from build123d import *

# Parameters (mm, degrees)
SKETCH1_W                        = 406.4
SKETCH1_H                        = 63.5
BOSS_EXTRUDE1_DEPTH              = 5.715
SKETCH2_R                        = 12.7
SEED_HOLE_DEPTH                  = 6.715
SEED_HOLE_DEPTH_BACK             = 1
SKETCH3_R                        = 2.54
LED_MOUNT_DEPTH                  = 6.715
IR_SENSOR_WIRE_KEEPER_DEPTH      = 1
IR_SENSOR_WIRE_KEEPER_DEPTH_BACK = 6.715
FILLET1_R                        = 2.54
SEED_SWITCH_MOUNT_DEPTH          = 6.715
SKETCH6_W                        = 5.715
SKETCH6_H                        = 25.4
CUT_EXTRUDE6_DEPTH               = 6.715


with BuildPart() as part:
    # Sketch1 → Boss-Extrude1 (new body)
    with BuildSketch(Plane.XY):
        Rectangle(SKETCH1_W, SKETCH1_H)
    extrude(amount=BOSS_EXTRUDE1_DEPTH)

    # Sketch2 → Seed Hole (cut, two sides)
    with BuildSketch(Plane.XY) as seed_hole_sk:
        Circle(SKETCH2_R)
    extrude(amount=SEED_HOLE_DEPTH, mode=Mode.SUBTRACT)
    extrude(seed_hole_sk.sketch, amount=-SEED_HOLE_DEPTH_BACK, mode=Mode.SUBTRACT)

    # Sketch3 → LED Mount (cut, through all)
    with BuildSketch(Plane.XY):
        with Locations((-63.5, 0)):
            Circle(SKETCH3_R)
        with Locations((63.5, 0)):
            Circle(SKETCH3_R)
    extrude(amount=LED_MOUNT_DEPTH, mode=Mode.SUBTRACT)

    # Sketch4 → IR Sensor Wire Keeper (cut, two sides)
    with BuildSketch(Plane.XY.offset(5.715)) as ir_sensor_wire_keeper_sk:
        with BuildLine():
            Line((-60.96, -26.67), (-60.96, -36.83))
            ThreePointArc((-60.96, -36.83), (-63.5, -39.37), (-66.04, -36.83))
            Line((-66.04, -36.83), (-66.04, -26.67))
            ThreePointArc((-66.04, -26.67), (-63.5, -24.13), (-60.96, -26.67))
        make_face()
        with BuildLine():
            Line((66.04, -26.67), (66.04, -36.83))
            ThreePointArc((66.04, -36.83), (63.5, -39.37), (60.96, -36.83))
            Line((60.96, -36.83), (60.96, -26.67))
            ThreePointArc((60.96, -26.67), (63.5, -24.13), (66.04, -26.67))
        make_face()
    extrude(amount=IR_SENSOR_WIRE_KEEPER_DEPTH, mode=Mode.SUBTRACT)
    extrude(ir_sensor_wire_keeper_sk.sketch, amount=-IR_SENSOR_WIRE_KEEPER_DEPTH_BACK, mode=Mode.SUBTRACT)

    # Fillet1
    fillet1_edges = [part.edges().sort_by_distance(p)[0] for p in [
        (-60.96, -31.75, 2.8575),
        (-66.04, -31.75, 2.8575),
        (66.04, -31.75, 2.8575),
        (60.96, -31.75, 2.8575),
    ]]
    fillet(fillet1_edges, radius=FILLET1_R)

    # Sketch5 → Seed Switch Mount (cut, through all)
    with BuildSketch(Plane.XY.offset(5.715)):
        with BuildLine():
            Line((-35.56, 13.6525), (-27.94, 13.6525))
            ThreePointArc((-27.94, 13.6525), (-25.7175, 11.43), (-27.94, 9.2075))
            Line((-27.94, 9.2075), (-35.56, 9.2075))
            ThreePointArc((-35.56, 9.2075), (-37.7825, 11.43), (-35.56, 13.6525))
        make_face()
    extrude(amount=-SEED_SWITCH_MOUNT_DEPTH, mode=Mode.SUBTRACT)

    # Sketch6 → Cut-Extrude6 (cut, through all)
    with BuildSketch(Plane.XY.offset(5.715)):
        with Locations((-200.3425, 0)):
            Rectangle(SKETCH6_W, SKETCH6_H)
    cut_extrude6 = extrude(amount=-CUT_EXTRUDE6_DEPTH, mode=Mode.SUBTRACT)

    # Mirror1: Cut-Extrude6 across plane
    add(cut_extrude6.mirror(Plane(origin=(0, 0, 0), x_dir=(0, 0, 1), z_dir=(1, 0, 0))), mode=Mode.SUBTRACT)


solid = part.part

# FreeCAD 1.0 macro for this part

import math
import FreeCAD as App
import Part
import Sketcher

V = App.Vector
Q = App.Units.Quantity


def edges_at(feature, points):
    """Names of the edges that pass closest to the given points."""
    edges = feature.Shape.Edges
    near = lambda p: min(range(len(edges)), key=lambda i: edges[i].distToShape(Part.Vertex(*p))[0])
    return sorted({f"Edge{near(p) + 1}" for p in points})


def add_polygon(sketch, points):
    """Adds a closed chain of lines whose ends are joined by coincident constraints."""
    first, n = sketch.GeometryCount, len(points)
    for a, b in zip(points, points[1:] + points[:1]):
        sketch.addGeometry(Part.LineSegment(App.Vector(*a, 0), App.Vector(*b, 0)), False)
    for i in range(n):
        sketch.addConstraint(Sketcher.Constraint("Coincident", first + i, 2, first + (i + 1) % n, 1))

doc = App.newDocument("Part")
body = doc.addObject("PartDesign::Body", "Body")

# Sketch on XY plane
sketch1 = body.newObject("Sketcher::SketchObject", "Sketch")
sketch1.AttachmentSupport = (doc.getObject("XY_Plane"), [""])
sketch1.MapMode = "FlatFace"
add_polygon(sketch1, [(-203.2, 31.75), (-203.2, -31.75), (203.2, -31.75), (203.2, 31.75)])  # lines 0-3
sketch1.addConstraint(Sketcher.Constraint("Vertical", 0))
sketch1.addConstraint(Sketcher.Constraint("Horizontal", 1))
sketch1.addConstraint(Sketcher.Constraint("Vertical", 2))
sketch1.addConstraint(Sketcher.Constraint("Horizontal", 3))
sketch1.addConstraint(Sketcher.Constraint("Symmetric", 0, 2, 2, 2, -1, 1))
sketch1.addConstraint(Sketcher.Constraint("DistanceX", 1, 1, 1, 2, Q("16 in")))
sketch1.addConstraint(Sketcher.Constraint("DistanceY", 0, 2, 0, 1, Q("2.5 in")))
pad1 = body.newObject("PartDesign::Pad", "Pad")
pad1.Profile = sketch1
pad1.Length = Q("0.225 in")

# Sketch on XY plane
sketch2 = body.newObject("Sketcher::SketchObject", "Sketch001")
sketch2.AttachmentSupport = (doc.getObject("XY_Plane"), [""])
sketch2.MapMode = "FlatFace"
sketch2.addGeometry(Part.Circle(V(0, 0, 0), V(0, 0, 1), 12.7), False)
sketch2.addConstraint(Sketcher.Constraint("Coincident", 0, 3, -1, 1))
sketch2.addConstraint(Sketcher.Constraint("Diameter", 0, Q("1 in")))
pocket1 = body.newObject("PartDesign::Pocket", "Pocket")
pocket1.Profile = sketch2
pocket1.Type = "ThroughAll"
pocket1.Midplane = True

# Sketch on XY plane
sketch3 = body.newObject("Sketcher::SketchObject", "Sketch002")
sketch3.AttachmentSupport = (doc.getObject("XY_Plane"), [""])
sketch3.MapMode = "FlatFace"
sketch3.addGeometry(Part.Circle(V(-63.5, 0, 0), V(0, 0, 1), 2.54), False)
sketch3.addGeometry(Part.Circle(V(63.5, 0, 0), V(0, 0, 1), 2.54), False)
sketch3.addConstraint(Sketcher.Constraint("Equal", 0, 1))
sketch3.addConstraint(Sketcher.Constraint("Symmetric", 0, 3, 1, 3, -1, 1))
sketch3.addConstraint(Sketcher.Constraint("PointOnObject", 0, 3, -1))
sketch3.addConstraint(Sketcher.Constraint("Diameter", 0, Q("0.2 in")))
sketch3.addConstraint(Sketcher.Constraint("DistanceX", 0, 3, 1, 3, Q("5 in")))
pocket2 = body.newObject("PartDesign::Pocket", "Pocket001")
pocket2.Profile = sketch3
pocket2.Type = "ThroughAll"
pocket2.Reversed = True

# Sketch on XY plane
sketch4 = body.newObject("Sketcher::SketchObject", "Sketch003")
sketch4.AttachmentSupport = (doc.getObject("XY_Plane"), [""])
sketch4.MapMode = "FlatFace"
sketch4.AttachmentOffset = App.Placement(V(0, 0, 0.225 * 25.4), App.Rotation())
sketch4.addGeometry(Part.LineSegment(V(-60.96, -36.83, 0), V(-60.96, -26.67, 0)), False)
sketch4.addGeometry(Part.ArcOfCircle(Part.Circle(V(-63.5, -26.67, 0), V(0, 0, 1), 2.54), math.radians(0), math.radians(180)), False)
sketch4.addGeometry(Part.LineSegment(V(-66.04, -26.67, 0), V(-66.04, -36.83, 0)), False)
sketch4.addGeometry(Part.ArcOfCircle(Part.Circle(V(-63.5, -36.83, 0), V(0, 0, 1), 2.54), math.radians(180), math.radians(360)), False)
sketch4.addGeometry(Part.LineSegment(V(66.04, -36.83, 0), V(66.04, -26.67, 0)), False)
sketch4.addGeometry(Part.ArcOfCircle(Part.Circle(V(63.5, -26.67, 0), V(0, 0, 1), 2.54), math.radians(0), math.radians(180)), False)
sketch4.addGeometry(Part.LineSegment(V(60.96, -26.67, 0), V(60.96, -36.83, 0)), False)
sketch4.addGeometry(Part.ArcOfCircle(Part.Circle(V(63.5, -36.83, 0), V(0, 0, 1), 2.54), math.radians(180), math.radians(360)), False)
sketch4.addConstraint(Sketcher.Constraint("Tangent", 0, 2, 1, 1))
sketch4.addConstraint(Sketcher.Constraint("Tangent", 1, 2, 2, 1))
sketch4.addConstraint(Sketcher.Constraint("Tangent", 2, 2, 3, 1))
sketch4.addConstraint(Sketcher.Constraint("Tangent", 3, 2, 0, 1))
sketch4.addConstraint(Sketcher.Constraint("Tangent", 4, 2, 5, 1))
sketch4.addConstraint(Sketcher.Constraint("Tangent", 5, 2, 6, 1))
sketch4.addConstraint(Sketcher.Constraint("Tangent", 6, 2, 7, 1))
sketch4.addConstraint(Sketcher.Constraint("Tangent", 7, 2, 4, 1))
sketch4.addConstraint(Sketcher.Constraint("Vertical", 0))
sketch4.addConstraint(Sketcher.Constraint("Vertical", 2))
sketch4.addConstraint(Sketcher.Constraint("Vertical", 4))
sketch4.addConstraint(Sketcher.Constraint("Vertical", 6))
sketch4.addConstraint(Sketcher.Constraint("Equal", 3, 5))
sketch4.addConstraint(Sketcher.Constraint("Symmetric", 1, 3, 5, 3, -2))
sketch4.addConstraint(Sketcher.Constraint("Horizontal", 3, 3, 7, 3))
sketch4.addConstraint(Sketcher.Constraint("Radius", 1, Q("0.1 in")))
sketch4.addConstraint(Sketcher.Constraint("DistanceY", 0, 1, 0, 2, Q("0.4 in")))
sketch4.addConstraint(Sketcher.Constraint("DistanceX", 1, 3, 5, 3, Q("5 in")))
sketch4.addConstraint(Sketcher.Constraint("DistanceY", 1, 3, -1, 1, Q("1.05 in")))
pocket3 = body.newObject("PartDesign::Pocket", "Pocket002")
pocket3.Profile = sketch4
pocket3.Type = "ThroughAll"
pocket3.Midplane = True
doc.recompute()

fillet = body.newObject("PartDesign::Fillet", "Fillet")
fillet.Base = (pocket3, edges_at(pocket3, [
    (-60.96, -31.75, 2.857),
    (-66.04, -31.75, 2.857),
    (66.04, -31.75, 2.857),
    (60.96, -31.75, 2.857),
]))
fillet.Radius = Q("0.1 in")

# Sketch on XY plane
sketch5 = body.newObject("Sketcher::SketchObject", "Sketch004")
sketch5.AttachmentSupport = (doc.getObject("XY_Plane"), [""])
sketch5.MapMode = "FlatFace"
sketch5.AttachmentOffset = App.Placement(V(0, 0, 0.225 * 25.4), App.Rotation())
sketch5.addGeometry(Part.LineSegment(V(-27.94, 13.6525, 0), V(-35.56, 13.6525, 0)), False)
sketch5.addGeometry(Part.ArcOfCircle(Part.Circle(V(-35.56, 11.43, 0), V(0, 0, 1), 2.2225), math.radians(90), math.radians(270)), False)
sketch5.addGeometry(Part.LineSegment(V(-35.56, 9.2075, 0), V(-27.94, 9.2075, 0)), False)
sketch5.addGeometry(Part.ArcOfCircle(Part.Circle(V(-27.94, 11.43, 0), V(0, 0, 1), 2.2225), math.radians(-90), math.radians(90)), False)
sketch5.addConstraint(Sketcher.Constraint("Tangent", 0, 2, 1, 1))
sketch5.addConstraint(Sketcher.Constraint("Tangent", 1, 2, 2, 1))
sketch5.addConstraint(Sketcher.Constraint("Tangent", 2, 2, 3, 1))
sketch5.addConstraint(Sketcher.Constraint("Tangent", 3, 2, 0, 1))
sketch5.addConstraint(Sketcher.Constraint("Horizontal", 0))
sketch5.addConstraint(Sketcher.Constraint("Horizontal", 2))
sketch5.addConstraint(Sketcher.Constraint("DistanceX", 0, 2, 0, 1, Q("0.3 in")))
sketch5.addConstraint(Sketcher.Constraint("DistanceX", 1, 3, -1, 1, Q("1.4 in")))
sketch5.addConstraint(Sketcher.Constraint("Radius", 1, Q("0.0875 in")))
sketch5.addConstraint(Sketcher.Constraint("DistanceY", -1, 1, 1, 3, Q("0.45 in")))
pocket4 = body.newObject("PartDesign::Pocket", "Pocket003")
pocket4.Profile = sketch5
pocket4.Type = "ThroughAll"

# Sketch on XY plane
sketch6 = body.newObject("Sketcher::SketchObject", "Sketch005")
sketch6.AttachmentSupport = (doc.getObject("XY_Plane"), [""])
sketch6.MapMode = "FlatFace"
sketch6.AttachmentOffset = App.Placement(V(0, 0, 0.225 * 25.4), App.Rotation())
add_polygon(sketch6, [(-203.2, 12.7), (-203.2, -12.7), (-197.485, -12.7), (-197.485, 12.7)])  # lines 0-3
sketch6.addConstraint(Sketcher.Constraint("Vertical", 0))
sketch6.addConstraint(Sketcher.Constraint("Horizontal", 1))
sketch6.addConstraint(Sketcher.Constraint("Vertical", 2))
sketch6.addConstraint(Sketcher.Constraint("Horizontal", 3))
sketch6.addConstraint(Sketcher.Constraint("DistanceY", 0, 2, 0, 1, Q("1 in")))
sketch6.addConstraint(Sketcher.Constraint("DistanceX", 0, 2, -1, 1, Q("8 in")))
sketch6.addConstraint(Sketcher.Constraint("DistanceY", 0, 2, -1, 1, Q("0.5 in")))
sketch6.addConstraint(Sketcher.Constraint("DistanceX", 1, 1, 1, 2, Q("0.225 in")))
pocket5 = body.newObject("PartDesign::Pocket", "Pocket004")
pocket5.Profile = sketch6
pocket5.Type = "ThroughAll"
doc.recompute()

mirrored = body.newObject("PartDesign::Mirrored", "Mirrored")
mirrored.Originals = [pocket5]
mirrored.MirrorPlane = (doc.getObject("YZ_Plane"), [""])
body.Tip = mirrored

doc.recompute()
